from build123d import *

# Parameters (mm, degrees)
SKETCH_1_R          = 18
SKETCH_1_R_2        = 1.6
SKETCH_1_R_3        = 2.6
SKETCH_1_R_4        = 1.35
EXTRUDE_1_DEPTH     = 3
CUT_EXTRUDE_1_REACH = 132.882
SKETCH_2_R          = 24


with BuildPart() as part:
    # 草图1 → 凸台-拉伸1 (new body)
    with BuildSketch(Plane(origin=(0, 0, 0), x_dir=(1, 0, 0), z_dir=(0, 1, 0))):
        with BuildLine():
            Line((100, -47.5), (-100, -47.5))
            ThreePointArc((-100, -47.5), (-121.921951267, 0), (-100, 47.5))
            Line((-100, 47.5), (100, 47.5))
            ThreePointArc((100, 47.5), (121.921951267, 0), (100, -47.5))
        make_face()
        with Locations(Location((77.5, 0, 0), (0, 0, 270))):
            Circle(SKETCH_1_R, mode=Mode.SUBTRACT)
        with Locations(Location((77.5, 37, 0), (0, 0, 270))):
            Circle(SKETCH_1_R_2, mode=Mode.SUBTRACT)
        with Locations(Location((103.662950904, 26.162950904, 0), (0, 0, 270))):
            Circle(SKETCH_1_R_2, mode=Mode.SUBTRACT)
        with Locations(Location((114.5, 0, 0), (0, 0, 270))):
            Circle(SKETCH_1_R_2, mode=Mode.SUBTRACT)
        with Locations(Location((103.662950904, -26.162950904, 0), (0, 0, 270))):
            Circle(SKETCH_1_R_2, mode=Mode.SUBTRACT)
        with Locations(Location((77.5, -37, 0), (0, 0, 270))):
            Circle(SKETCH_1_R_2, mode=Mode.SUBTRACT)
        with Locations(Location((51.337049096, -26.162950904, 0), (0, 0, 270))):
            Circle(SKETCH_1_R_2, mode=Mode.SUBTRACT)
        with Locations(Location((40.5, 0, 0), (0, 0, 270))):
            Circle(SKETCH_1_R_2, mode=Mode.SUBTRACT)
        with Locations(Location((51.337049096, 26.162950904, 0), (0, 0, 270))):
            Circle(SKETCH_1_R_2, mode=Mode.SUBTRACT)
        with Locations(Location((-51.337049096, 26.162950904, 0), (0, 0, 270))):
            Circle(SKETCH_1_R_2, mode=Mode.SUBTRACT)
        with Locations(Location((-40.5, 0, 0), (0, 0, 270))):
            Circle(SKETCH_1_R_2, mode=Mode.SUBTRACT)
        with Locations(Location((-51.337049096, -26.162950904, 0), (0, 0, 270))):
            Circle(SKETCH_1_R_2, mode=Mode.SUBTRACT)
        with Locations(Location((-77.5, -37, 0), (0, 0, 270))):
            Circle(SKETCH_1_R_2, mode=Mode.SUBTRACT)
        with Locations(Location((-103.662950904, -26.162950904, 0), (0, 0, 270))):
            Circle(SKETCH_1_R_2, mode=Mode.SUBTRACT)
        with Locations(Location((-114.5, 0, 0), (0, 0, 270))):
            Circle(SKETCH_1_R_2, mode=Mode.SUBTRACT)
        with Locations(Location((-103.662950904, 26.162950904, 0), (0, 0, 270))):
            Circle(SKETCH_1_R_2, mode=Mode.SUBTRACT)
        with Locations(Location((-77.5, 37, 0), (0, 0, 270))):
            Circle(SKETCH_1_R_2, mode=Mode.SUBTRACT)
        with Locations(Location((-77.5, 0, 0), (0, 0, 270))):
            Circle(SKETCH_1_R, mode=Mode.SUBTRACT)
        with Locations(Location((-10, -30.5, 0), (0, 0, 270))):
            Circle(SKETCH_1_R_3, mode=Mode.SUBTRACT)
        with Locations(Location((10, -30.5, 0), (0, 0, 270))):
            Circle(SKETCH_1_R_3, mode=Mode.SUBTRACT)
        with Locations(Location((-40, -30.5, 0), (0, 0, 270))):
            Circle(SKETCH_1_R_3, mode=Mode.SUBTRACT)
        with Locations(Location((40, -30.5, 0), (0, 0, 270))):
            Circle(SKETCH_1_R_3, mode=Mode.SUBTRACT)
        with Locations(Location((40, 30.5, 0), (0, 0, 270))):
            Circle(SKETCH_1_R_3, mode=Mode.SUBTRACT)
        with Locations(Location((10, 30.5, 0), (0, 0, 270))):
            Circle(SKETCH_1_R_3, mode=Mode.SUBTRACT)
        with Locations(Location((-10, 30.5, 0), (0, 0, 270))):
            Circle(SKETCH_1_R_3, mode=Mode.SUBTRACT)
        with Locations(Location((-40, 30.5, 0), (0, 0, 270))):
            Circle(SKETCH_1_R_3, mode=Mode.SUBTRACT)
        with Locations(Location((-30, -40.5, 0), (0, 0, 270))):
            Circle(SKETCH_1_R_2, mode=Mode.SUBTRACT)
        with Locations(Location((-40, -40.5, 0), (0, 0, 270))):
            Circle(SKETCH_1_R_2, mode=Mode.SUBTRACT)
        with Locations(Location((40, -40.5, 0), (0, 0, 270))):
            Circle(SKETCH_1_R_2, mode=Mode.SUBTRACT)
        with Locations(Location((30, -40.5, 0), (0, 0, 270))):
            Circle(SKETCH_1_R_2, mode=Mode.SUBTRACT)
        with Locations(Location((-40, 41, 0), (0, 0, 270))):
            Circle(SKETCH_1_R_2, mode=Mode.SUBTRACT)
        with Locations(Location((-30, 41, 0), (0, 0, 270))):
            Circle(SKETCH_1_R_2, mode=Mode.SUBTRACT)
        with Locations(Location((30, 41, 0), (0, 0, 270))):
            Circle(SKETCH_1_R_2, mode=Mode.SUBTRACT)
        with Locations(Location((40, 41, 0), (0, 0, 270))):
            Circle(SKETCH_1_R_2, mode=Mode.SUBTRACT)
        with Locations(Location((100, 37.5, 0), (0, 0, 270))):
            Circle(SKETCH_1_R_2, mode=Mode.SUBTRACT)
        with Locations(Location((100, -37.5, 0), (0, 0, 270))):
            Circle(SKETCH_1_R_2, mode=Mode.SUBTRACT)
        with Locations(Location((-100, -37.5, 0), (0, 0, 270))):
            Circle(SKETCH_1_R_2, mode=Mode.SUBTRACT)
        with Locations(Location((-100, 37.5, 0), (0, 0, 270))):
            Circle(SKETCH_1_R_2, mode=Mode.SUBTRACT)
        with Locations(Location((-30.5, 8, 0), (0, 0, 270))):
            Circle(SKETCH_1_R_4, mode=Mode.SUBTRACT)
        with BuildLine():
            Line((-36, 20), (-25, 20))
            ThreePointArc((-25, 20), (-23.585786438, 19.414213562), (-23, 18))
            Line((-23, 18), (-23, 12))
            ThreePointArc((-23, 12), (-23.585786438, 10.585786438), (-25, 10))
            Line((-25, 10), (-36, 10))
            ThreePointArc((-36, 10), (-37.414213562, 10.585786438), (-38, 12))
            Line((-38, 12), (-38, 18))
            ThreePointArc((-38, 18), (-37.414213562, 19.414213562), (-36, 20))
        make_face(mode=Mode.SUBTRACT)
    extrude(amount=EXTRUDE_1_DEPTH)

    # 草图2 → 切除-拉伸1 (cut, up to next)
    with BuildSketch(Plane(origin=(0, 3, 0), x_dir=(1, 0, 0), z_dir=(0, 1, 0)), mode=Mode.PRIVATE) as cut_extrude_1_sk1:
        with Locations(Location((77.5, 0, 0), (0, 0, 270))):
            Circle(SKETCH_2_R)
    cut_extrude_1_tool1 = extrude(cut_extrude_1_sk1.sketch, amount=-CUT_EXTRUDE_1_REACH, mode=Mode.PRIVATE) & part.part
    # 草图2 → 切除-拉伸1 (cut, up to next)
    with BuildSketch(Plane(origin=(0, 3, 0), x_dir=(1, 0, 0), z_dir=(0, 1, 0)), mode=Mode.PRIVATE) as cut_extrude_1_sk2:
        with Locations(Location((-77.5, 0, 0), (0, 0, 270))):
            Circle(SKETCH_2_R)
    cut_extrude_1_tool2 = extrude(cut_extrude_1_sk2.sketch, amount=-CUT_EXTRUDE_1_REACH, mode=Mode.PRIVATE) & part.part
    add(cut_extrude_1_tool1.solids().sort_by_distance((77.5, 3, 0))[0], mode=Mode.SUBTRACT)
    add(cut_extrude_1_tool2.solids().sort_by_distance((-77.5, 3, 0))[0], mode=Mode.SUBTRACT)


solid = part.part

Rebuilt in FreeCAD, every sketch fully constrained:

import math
import FreeCAD as App
import Part
import Sketcher
Q = App.Units.Quantity

doc = App.newDocument("Part")
body = doc.addObject("PartDesign::Body", "Body")

# Sketch on XZ plane
sketch1 = doc.addObject("Sketcher::SketchObject", "Sketch")
body.addObject(sketch1)
sketch1.AttachmentSupport = (doc.XZ_Plane, [""])
sketch1.MapMode = "FlatFace"
sketch1.addGeometry([
    Part.LineSegment(App.Vector(-100, 47.5, 0), App.Vector(100, 47.5, 0)),  # 0
    Part.ArcOfCircle(Part.Circle(App.Vector(59.5, 0, 0), App.Vector(0, 0, 1), 62.421951), math.radians(-49.548042), math.radians(49.548042)),  # 1
    Part.LineSegment(App.Vector(100, -47.5, 0), App.Vector(-100, -47.5, 0)),  # 2
    Part.ArcOfCircle(Part.Circle(App.Vector(-59.5, 0, 0), App.Vector(0, 0, 1), 62.421951), math.radians(130.451958), math.radians(229.548042)),  # 3
    Part.Circle(App.Vector(100, 37.5, 0), App.Vector(0, 0, 1), 1.6),  # 4
    Part.Circle(App.Vector(77.5, 37, 0), App.Vector(0, 0, 1), 1.6),  # 5
    Part.Circle(App.Vector(103.662951, 26.162951, 0), App.Vector(0, 0, 1), 1.6),  # 6
    Part.Circle(App.Vector(40, 40.5, 0), App.Vector(0, 0, 1), 1.6),  # 7
    Part.Circle(App.Vector(30, 40.5, 0), App.Vector(0, 0, 1), 1.6),  # 8
    Part.Circle(App.Vector(40, 30.5, 0), App.Vector(0, 0, 1), 2.6),  # 9
    Part.Circle(App.Vector(51.337049, 26.162951, 0), App.Vector(0, 0, 1), 1.6),  # 10
    Part.Circle(App.Vector(10, 30.5, 0), App.Vector(0, 0, 1), 2.6),  # 11
    Part.Circle(App.Vector(114.5, 0, 0), App.Vector(0, 0, 1), 1.6),  # 12
    Part.Circle(App.Vector(77.5, 0, 0), App.Vector(0, 0, 1), 18),  # 13
    Part.Circle(App.Vector(40.5, 0, 0), App.Vector(0, 0, 1), 1.6),  # 14
    Part.Circle(App.Vector(-30, 40.5, 0), App.Vector(0, 0, 1), 1.6),  # 15
    Part.Circle(App.Vector(-40, 40.5, 0), App.Vector(0, 0, 1), 1.6),  # 16
    Part.Circle(App.Vector(-10, 30.5, 0), App.Vector(0, 0, 1), 2.6),  # 17
    Part.Circle(App.Vector(-40, 30.5, 0), App.Vector(0, 0, 1), 2.6),  # 18
    Part.Circle(App.Vector(-51.337049, 26.162951, 0), App.Vector(0, 0, 1), 1.6),  # 19
    Part.Circle(App.Vector(-77.5, 37, 0), App.Vector(0, 0, 1), 1.6),  # 20
    Part.Circle(App.Vector(-100, 37.5, 0), App.Vector(0, 0, 1), 1.6),  # 21
    Part.Circle(App.Vector(-103.662951, 26.162951, 0), App.Vector(0, 0, 1), 1.6),  # 22
    Part.Circle(App.Vector(-40.5, 0, 0), App.Vector(0, 0, 1), 1.6),  # 23
    Part.Circle(App.Vector(-77.5, 0, 0), App.Vector(0, 0, 1), 18),  # 24
    Part.Circle(App.Vector(-114.5, 0, 0), App.Vector(0, 0, 1), 1.6),  # 25
    Part.Circle(App.Vector(103.662951, -26.162951, 0), App.Vector(0, 0, 1), 1.6),  # 26
    Part.Circle(App.Vector(100, -37.5, 0), App.Vector(0, 0, 1), 1.6),  # 27
    Part.Circle(App.Vector(77.5, -37, 0), App.Vector(0, 0, 1), 1.6),  # 28
    Part.Circle(App.Vector(51.337049, -26.162951, 0), App.Vector(0, 0, 1), 1.6),  # 29
    Part.Circle(App.Vector(40, -30.5, 0), App.Vector(0, 0, 1), 2.6),  # 30
    Part.Circle(App.Vector(10, -30.5, 0), App.Vector(0, 0, 1), 2.6),  # 31
    Part.Circle(App.Vector(40, -41, 0), App.Vector(0, 0, 1), 1.6),  # 32
    Part.Circle(App.Vector(30, -41, 0), App.Vector(0, 0, 1), 1.6),  # 33
    Part.Circle(App.Vector(-30.5, -8, 0), App.Vector(0, 0, 1), 1.35),  # 34
    Part.LineSegment(App.Vector(-36, -20, 0), App.Vector(-25, -20, 0)),  # 35
    Part.ArcOfCircle(Part.Circle(App.Vector(-25, -18, 0), App.Vector(0, 0, 1), 2), math.radians(-90), math.radians(0)),  # 36
    Part.LineSegment(App.Vector(-23, -18, 0), App.Vector(-23, -12, 0)),  # 37
    Part.ArcOfCircle(Part.Circle(App.Vector(-25, -12, 0), App.Vector(0, 0, 1), 2), math.radians(0), math.radians(90)),  # 38
    Part.LineSegment(App.Vector(-25, -10, 0), App.Vector(-36, -10, 0)),  # 39
    Part.ArcOfCircle(Part.Circle(App.Vector(-36, -12, 0), App.Vector(0, 0, 1), 2), math.radians(90), math.radians(180)),  # 40
    Part.LineSegment(App.Vector(-38, -12, 0), App.Vector(-38, -18, 0)),  # 41
    Part.ArcOfCircle(Part.Circle(App.Vector(-36, -18, 0), App.Vector(0, 0, 1), 2), math.radians(-180), math.radians(-90)),  # 42
    Part.Circle(App.Vector(-10, -30.5, 0), App.Vector(0, 0, 1), 2.6),  # 43
    Part.Circle(App.Vector(-51.337049, -26.162951, 0), App.Vector(0, 0, 1), 1.6),  # 44
    Part.Circle(App.Vector(-40, -30.5, 0), App.Vector(0, 0, 1), 2.6),  # 45
    Part.Circle(App.Vector(-30, -41, 0), App.Vector(0, 0, 1), 1.6),  # 46
    Part.Circle(App.Vector(-40, -41, 0), App.Vector(0, 0, 1), 1.6),  # 47
    Part.Circle(App.Vector(-103.662951, -26.162951, 0), App.Vector(0, 0, 1), 1.6),  # 48
    Part.Circle(App.Vector(-77.5, -37, 0), App.Vector(0, 0, 1), 1.6),  # 49
    Part.Circle(App.Vector(-100, -37.5, 0), App.Vector(0, 0, 1), 1.6),  # 50
], False)
sketch1.addConstraint([
    Sketcher.Constraint("Coincident", 0, 2, 1, 2),
    Sketcher.Constraint("Coincident", 1, 1, 2, 1),
    Sketcher.Constraint("Coincident", 2, 2, 3, 2),
    Sketcher.Constraint("Coincident", 3, 1, 0, 1),
    Sketcher.Constraint("Tangent", 35, 2, 36, 1),
    Sketcher.Constraint("Tangent", 36, 2, 37, 1),
    Sketcher.Constraint("Tangent", 37, 2, 38, 1),
    Sketcher.Constraint("Tangent", 38, 2, 39, 1),
    Sketcher.Constraint("Tangent", 39, 2, 40, 1),
    Sketcher.Constraint("Tangent", 40, 2, 41, 1),
    Sketcher.Constraint("Tangent", 41, 2, 42, 1),
    Sketcher.Constraint("Tangent", 42, 2, 35, 1),
    Sketcher.Constraint("Horizontal", 0),
    Sketcher.Constraint("Horizontal", 2),
    Sketcher.Constraint("Horizontal", 35),
    Sketcher.Constraint("Vertical", 37),
    Sketcher.Constraint("Horizontal", 39),
    Sketcher.Constraint("Vertical", 41),
    Sketcher.Constraint("Equal", 1, 3),
    Sketcher.Constraint("Equal", 4, 5),
    Sketcher.Constraint("Equal", 5, 6),
    Sketcher.Constraint("Equal", 6, 7),
    Sketcher.Constraint("Equal", 7, 8),
    Sketcher.Constraint("Equal", 8, 10),
    Sketcher.Constraint("Equal", 9, 11),
    Sketcher.Constraint("Equal", 10, 12),
    Sketcher.Constraint("Equal", 12, 14),
    Sketcher.Constraint("Equal", 14, 15),
    Sketcher.Constraint("Equal", 15, 16),
    Sketcher.Constraint("Equal", 11, 17),
    Sketcher.Constraint("Equal", 17, 18),
    Sketcher.Constraint("Equal", 16, 19),
    Sketcher.Constraint("Equal", 19, 20),
    Sketcher.Constraint("Equal", 20, 21),
    Sketcher.Constraint("Equal", 21, 22),
    Sketcher.Constraint("Equal", 22, 23),
    Sketcher.Constraint("Equal", 13, 24),
    Sketcher.Constraint("Equal", 23, 25),
    Sketcher.Constraint("Equal", 25, 26),
    Sketcher.Constraint("Equal", 26, 27),
    Sketcher.Constraint("Equal", 27, 28),
    Sketcher.Constraint("Equal", 28, 29),
    Sketcher.Constraint("Equal", 18, 30),
    Sketcher.Constraint("Equal", 30, 31),
    Sketcher.Constraint("Equal", 29, 32),
    Sketcher.Constraint("Equal", 32, 33),
    Sketcher.Constraint("Equal", 36, 38),
    Sketcher.Constraint("Equal", 38, 40),
    Sketcher.Constraint("Equal", 40, 42),
    Sketcher.Constraint("Equal", 31, 43),
    Sketcher.Constraint("Equal", 33, 44),
    Sketcher.Constraint("Equal", 43, 45),
    Sketcher.Constraint("Equal", 44, 46),
    Sketcher.Constraint("Equal", 46, 47),
    Sketcher.Constraint("Equal", 47, 48),
    Sketcher.Constraint("Equal", 48, 49),
    Sketcher.Constraint("Equal", 49, 50),
    Sketcher.Constraint("Symmetric", 1, 3, 3, 3, -1, 1),
    Sketcher.Constraint("Symmetric", 14, 3, 23, 3, -1, 1),
    Sketcher.Constraint("Symmetric", 13, 3, 24, 3, -1, 1),
    Sketcher.Constraint("Symmetric", 12, 3, 25, 3, -1, 1),
    Sketcher.Constraint("Symmetric", 22, 3, 26, 3, -1, 1),
    Sketcher.Constraint("Symmetric", 21, 3, 27, 3, -1, 1),
    Sketcher.Constraint("Symmetric", 20, 3, 28, 3, -1, 1),
    Sketcher.Constraint("Symmetric", 19, 3, 29, 3, -1, 1),
    Sketcher.Constraint("Symmetric", 18, 3, 30, 3, -1, 1),
    Sketcher.Constraint("Symmetric", 17, 3, 31, 3, -1, 1),
    Sketcher.Constraint("Symmetric", 11, 3, 43, 3, -1, 1),
    Sketcher.Constraint("Symmetric", 10, 3, 44, 3, -1, 1),
    Sketcher.Constraint("Symmetric", 9, 3, 45, 3, -1, 1),
    Sketcher.Constraint("Symmetric", 6, 3, 48, 3, -1, 1),
    Sketcher.Constraint("Symmetric", 5, 3, 49, 3, -1, 1),
    Sketcher.Constraint("Symmetric", 4, 3, 50, 3, -1, 1),
    Sketcher.Constraint("Symmetric", 8, 3, 15, 3, -2),
    Sketcher.Constraint("Symmetric", 7, 3, 16, 3, -2),
    Sketcher.Constraint("Symmetric", 11, 3, 17, 3, -2),
    Sketcher.Constraint("Symmetric", 9, 3, 18, 3, -2),
    Sketcher.Constraint("Symmetric", 10, 3, 19, 3, -2),
    Sketcher.Constraint("Symmetric", 5, 3, 20, 3, -2),
    Sketcher.Constraint("Symmetric", 4, 3, 21, 3, -2),
    Sketcher.Constraint("Symmetric", 6, 3, 22, 3, -2),
    Sketcher.Constraint("Symmetric", 33, 3, 46, 3, -2),
    Sketcher.Constraint("Symmetric", 32, 3, 47, 3, -2),
    Sketcher.Constraint("Symmetric", 0, 2, 1, 1, -1),
    Sketcher.Constraint("PointOnObject", 12, 3, -1),
    Sketcher.Constraint("PointOnObject", 13, 3, -1),
    Sketcher.Constraint("PointOnObject", 14, 3, -1),
    Sketcher.Constraint("Horizontal", 7, 3, 8, 3),
    Sketcher.Constraint("Horizontal", 6, 3, 10, 3),
    Sketcher.Constraint("Horizontal", 9, 3, 11, 3),
    Sketcher.Constraint("Horizontal", 32, 3, 33, 3),
    Sketcher.Constraint("Vertical", 7, 3, 9, 3),
    Sketcher.Constraint("Vertical", 5, 3, 13, 3),
    Sketcher.Constraint("Vertical", 30, 3, 32, 3),
    Sketcher.Constraint("Vertical", 8, 3, 33, 3),
    Sketcher.Constraint("Vertical", 27, 3, 0, 2),
    Sketcher.Constraint("Diameter", 13, Q("36 mm")),
    Sketcher.Constraint("Radius", 36, Q("2 mm")),
    Sketcher.Constraint("Diameter", 4, Q("3.2 mm")),
    Sketcher.Constraint("Diameter", 9, Q("5.2 mm")),
    Sketcher.Constraint("Diameter", 34, Q("2.7 mm")),
    Sketcher.Constraint("DistanceX", 0, 1, 0, 2, Q("200 mm")),
    Sketcher.Constraint("DistanceX", 35, 1, 35, 2, Q("11 mm")),
    Sketcher.Constraint("DistanceY", 37, 1, 37, 2, Q("6 mm")),
    Sketcher.Constraint("DistanceY", -1, 1, 5, 3, Q("37 mm")),
    Sketcher.Constraint("DistanceX", -1, 1, 7, 3, Q("40 mm")),
    Sketcher.Constraint("DistanceX", -1, 1, 8, 3, Q("30 mm")),
    Sketcher.Constraint("DistanceX", -1, 1, 11, 3, Q("10 mm")),
    Sketcher.Constraint("DistanceY", 32, 3, -1, 1, Q("41 mm")),
    Sketcher.Constraint("DistanceY", 34, 3, -1, 1, Q("8 mm")),
    Sketcher.Constraint("DistanceX", 36, 3, -1, 1, Q("25 mm")),
    Sketcher.Constraint("DistanceY", 36, 3, -1, 1, Q("18 mm")),
    Sketcher.Constraint("DistanceX", 3, 3, 1, 3, Q("119 mm")),
    Sketcher.Constraint("DistanceX", 1, 3, 5, 3, Q("18 mm")),
    Sketcher.Constraint("DistanceY", 4, 3, 7, 3, Q("3 mm")),
    Sketcher.Constraint("DistanceY", 9, 3, 7, 3, Q("10 mm")),
    Sketcher.Constraint("DistanceX", 5, 3, 12, 3, Q("37 mm")),
    Sketcher.Constraint("DistanceX", 14, 3, 1, 3, Q("19 mm")),
    Sketcher.Constraint("DistanceX", 23, 3, 34, 3, Q("10 mm")),
    Sketcher.Constraint("DistanceY", 4, 3, 0, 2, Q("10 mm")),
    Sketcher.Constraint("DistanceY", -1, 1, 4, 3, Q("37.5 mm")),
    Sketcher.Constraint("DistanceX", 22, 3, 19, 3, Q("52.325902 mm")),
    Sketcher.Constraint("DistanceY", 26, 3, 6, 3, Q("52.325902 mm")),
    Sketcher.Constraint("DistanceX", -1, 1, 6, 3, Q("103.662951 mm")),
])
pad1 = doc.addObject("PartDesign::Pad", "Pad")
body.addObject(pad1)
pad1.Profile = sketch1
pad1.Length = 3
pad1.Reversed = True

# Sketch on XZ plane
sketch2 = doc.addObject("Sketcher::SketchObject", "Sketch001")
body.addObject(sketch2)
sketch2.AttachmentSupport = (doc.XZ_Plane, [""])
sketch2.MapMode = "FlatFace"
sketch2.AttachmentOffset = App.Placement(App.Vector(0, 0, -3), App.Rotation())
sketch2.addGeometry(Part.Circle(App.Vector(77.5, 0, 0), App.Vector(0, 0, 1), 24), False)
sketch2.addConstraint([
    Sketcher.Constraint("PointOnObject", 0, 3, -1),
    Sketcher.Constraint("Diameter", 0, Q("48 mm")),
    Sketcher.Constraint("DistanceX", -1, 1, 0, 3, Q("77.5 mm")),
])
pocket1 = doc.addObject("PartDesign::Pocket", "Pocket")
body.addObject(pocket1)
pocket1.Profile = sketch2
pocket1.Length = 3
pocket1.Reversed = True

# Sketch on XZ plane
sketch3 = doc.addObject("Sketcher::SketchObject", "Sketch002")
body.addObject(sketch3)
sketch3.AttachmentSupport = (doc.XZ_Plane, [""])
sketch3.MapMode = "FlatFace"
sketch3.AttachmentOffset = App.Placement(App.Vector(0, 0, -3), App.Rotation())
sketch3.addGeometry(Part.Circle(App.Vector(-77.5, 0, 0), App.Vector(0, 0, 1), 24), False)
sketch3.addConstraint([
    Sketcher.Constraint("PointOnObject", 0, 3, -1),
    Sketcher.Constraint("Diameter", 0, Q("48 mm")),
    Sketcher.Constraint("DistanceX", 0, 3, -1, 1, Q("77.5 mm")),
])
pocket2 = doc.addObject("PartDesign::Pocket", "Pocket001")
body.addObject(pocket2)
pocket2.Profile = sketch3
pocket2.Length = 3
pocket2.Reversed = True

doc.recompute()
